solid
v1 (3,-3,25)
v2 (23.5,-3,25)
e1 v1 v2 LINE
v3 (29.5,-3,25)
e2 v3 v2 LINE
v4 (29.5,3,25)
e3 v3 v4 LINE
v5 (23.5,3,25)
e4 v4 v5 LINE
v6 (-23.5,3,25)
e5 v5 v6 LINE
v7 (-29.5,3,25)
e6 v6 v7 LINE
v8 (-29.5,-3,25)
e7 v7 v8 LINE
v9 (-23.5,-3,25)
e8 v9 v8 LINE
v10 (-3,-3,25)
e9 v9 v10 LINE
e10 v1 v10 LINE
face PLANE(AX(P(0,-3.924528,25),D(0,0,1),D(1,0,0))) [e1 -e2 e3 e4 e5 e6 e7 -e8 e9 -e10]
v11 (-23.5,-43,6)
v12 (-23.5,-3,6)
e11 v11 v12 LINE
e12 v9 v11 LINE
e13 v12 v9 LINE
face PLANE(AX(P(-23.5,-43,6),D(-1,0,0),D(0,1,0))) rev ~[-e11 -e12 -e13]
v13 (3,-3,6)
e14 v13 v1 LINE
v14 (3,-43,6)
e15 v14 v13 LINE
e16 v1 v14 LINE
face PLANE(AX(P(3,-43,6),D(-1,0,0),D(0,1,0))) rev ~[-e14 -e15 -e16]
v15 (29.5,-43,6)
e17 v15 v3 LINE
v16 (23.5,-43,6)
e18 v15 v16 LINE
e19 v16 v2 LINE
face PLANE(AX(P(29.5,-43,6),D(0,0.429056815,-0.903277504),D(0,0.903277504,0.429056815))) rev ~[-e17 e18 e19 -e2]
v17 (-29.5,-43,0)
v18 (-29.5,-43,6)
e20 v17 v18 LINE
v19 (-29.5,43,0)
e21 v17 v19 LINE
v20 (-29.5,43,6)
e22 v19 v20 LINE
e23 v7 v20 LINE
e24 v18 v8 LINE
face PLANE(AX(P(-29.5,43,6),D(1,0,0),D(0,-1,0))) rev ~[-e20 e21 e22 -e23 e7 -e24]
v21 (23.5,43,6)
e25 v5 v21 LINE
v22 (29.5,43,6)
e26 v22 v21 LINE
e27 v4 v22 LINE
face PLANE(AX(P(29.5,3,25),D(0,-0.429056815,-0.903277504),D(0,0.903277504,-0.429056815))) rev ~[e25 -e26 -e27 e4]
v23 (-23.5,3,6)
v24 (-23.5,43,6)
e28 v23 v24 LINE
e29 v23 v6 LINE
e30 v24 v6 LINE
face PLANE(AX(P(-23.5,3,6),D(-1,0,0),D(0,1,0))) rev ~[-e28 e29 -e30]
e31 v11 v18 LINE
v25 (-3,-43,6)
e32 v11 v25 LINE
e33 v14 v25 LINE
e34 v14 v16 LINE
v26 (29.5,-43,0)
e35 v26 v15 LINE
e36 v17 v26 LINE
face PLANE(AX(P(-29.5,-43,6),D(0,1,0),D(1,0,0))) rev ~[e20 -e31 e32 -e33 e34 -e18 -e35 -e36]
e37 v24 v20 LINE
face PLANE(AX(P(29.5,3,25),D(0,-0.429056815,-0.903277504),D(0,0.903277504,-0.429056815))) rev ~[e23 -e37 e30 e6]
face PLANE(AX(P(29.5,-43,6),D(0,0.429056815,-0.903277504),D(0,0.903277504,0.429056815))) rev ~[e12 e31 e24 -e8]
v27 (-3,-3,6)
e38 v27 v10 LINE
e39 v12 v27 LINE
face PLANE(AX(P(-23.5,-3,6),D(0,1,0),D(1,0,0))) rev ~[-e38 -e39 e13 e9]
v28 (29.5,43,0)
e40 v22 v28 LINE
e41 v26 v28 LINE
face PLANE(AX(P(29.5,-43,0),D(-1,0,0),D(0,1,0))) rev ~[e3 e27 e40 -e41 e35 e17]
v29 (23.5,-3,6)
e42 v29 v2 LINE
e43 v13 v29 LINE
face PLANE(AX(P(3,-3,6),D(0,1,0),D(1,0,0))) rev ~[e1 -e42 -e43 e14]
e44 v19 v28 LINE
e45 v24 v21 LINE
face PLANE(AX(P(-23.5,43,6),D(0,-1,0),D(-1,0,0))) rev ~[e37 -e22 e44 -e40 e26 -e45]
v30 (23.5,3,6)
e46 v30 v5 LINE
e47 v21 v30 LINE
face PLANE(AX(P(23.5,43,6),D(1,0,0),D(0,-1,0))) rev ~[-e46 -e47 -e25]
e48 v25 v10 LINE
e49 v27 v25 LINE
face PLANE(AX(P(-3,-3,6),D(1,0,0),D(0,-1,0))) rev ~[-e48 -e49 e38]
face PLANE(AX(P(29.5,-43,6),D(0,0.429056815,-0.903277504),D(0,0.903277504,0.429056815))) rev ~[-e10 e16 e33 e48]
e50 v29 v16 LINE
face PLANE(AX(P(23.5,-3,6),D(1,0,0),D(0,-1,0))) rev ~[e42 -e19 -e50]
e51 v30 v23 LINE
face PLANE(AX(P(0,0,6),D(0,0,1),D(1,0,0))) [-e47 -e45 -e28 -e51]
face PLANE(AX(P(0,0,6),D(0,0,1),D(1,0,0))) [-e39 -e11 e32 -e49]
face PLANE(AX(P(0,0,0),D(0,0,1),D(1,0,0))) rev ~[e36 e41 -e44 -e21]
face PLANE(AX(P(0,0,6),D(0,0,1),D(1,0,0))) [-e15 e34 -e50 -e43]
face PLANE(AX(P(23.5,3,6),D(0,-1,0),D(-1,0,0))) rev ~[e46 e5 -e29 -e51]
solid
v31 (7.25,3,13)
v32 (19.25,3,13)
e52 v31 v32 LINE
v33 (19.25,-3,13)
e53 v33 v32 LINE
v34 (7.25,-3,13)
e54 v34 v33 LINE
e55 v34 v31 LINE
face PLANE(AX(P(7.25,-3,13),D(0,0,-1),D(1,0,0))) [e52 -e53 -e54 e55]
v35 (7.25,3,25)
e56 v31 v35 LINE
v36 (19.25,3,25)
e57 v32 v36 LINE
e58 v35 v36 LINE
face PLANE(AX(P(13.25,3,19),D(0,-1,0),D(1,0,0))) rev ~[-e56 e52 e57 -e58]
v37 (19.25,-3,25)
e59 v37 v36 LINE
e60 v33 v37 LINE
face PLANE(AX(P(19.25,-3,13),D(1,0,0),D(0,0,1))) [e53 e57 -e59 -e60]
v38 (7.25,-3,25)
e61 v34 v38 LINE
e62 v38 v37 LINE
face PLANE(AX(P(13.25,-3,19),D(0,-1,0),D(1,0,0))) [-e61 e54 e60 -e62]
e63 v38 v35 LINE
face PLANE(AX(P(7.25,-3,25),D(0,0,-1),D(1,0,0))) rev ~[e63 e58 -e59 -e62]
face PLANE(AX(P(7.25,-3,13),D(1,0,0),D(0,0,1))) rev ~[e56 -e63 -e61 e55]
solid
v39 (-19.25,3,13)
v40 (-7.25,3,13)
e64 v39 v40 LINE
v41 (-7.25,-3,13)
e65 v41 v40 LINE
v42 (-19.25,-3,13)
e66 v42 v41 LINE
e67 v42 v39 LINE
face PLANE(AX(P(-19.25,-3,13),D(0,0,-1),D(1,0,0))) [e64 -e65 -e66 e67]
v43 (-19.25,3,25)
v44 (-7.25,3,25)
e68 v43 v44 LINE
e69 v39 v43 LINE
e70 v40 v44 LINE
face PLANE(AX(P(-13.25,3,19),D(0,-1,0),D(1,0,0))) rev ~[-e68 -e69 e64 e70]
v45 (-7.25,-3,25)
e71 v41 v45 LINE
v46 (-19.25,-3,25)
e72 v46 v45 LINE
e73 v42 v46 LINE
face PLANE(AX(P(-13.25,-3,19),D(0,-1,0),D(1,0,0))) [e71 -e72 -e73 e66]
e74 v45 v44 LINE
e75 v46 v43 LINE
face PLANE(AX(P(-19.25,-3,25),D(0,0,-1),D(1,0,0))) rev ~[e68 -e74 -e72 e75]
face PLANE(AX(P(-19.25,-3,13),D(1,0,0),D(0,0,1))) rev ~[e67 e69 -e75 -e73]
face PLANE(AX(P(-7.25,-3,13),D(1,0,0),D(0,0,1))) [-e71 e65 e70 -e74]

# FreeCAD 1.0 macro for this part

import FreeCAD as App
import Part
import Sketcher


def add_polygon(sketch, points):
    """Adds a closed chain of lines whose ends are joined by coincident constraints."""
    first, n = sketch.GeometryCount, len(points)
    for a, b in zip(points, points[1:] + points[:1]):
        sketch.addGeometry(Part.LineSegment(App.Vector(*a, 0), App.Vector(*b, 0)), False)
    for i in range(n):
        sketch.addConstraint(Sketcher.Constraint("Coincident", first + i, 2, first + (i + 1) % n, 1))

doc = App.newDocument("Part")
params = doc.addObject("Spreadsheet::Sheet", "Params")
for row, (alias, value) in enumerate([
    ("sketch1_width", "59 mm"),
    ("sketch1_height", "86 mm"),
    ("pad1_length", "6 mm"),
    ("sketch2_width", "6 mm"),
    ("sketch2_width2", "47 mm"),
    ("sketch2_height", "86 mm"),
    ("sketch2_height2", "40 mm"),
    ("pad2_length", "19 mm"),
    ("sketch3_width", "40 mm"),
    ("sketch3_height", "19 mm"),
    ("sketch4_width", "12 mm"),
    ("pad3_length", "6 mm"),
], start=1):
    params.set(f"A{row}", alias)
    params.set(f"B{row}", "=" + value)
    params.setAlias(f"B{row}", alias)

body = doc.addObject("PartDesign::Body", "Body")

# Sketch on XY plane
sketch1 = body.newObject("Sketcher::SketchObject", "Sketch")
sketch1.AttachmentSupport = (doc.getObject("XY_Plane"), [""])
sketch1.MapMode = "FlatFace"
add_polygon(sketch1, [(-30, 43), (-30, -43), (30, -43), (30, 43)])  # lines 0-3
sketch1.addConstraint([
    Sketcher.Constraint("Vertical", 0),
    Sketcher.Constraint("Horizontal", 1),
    Sketcher.Constraint("Vertical", 2),
    Sketcher.Constraint("Horizontal", 3),
    Sketcher.Constraint("Symmetric", 0, 2, 2, 2, -1, 1),
    Sketcher.Constraint("DistanceX", 1, 1, 1, 2, 59.0),
    Sketcher.Constraint("DistanceY", 0, 2, 0, 1, 86.0),
])
sketch1.setExpression("Constraints[9]", "Params.sketch1_width")
sketch1.setExpression("Constraints[10]", "Params.sketch1_height")
pad1 = body.newObject("PartDesign::Pad", "Pad")
pad1.Profile = sketch1
pad1.setExpression("Length", "Params.pad1_length")

# Sketch on XY plane
sketch2 = body.newObject("Sketcher::SketchObject", "Sketch001")
sketch2.AttachmentSupport = (doc.getObject("XY_Plane"), [""])
sketch2.MapMode = "FlatFace"
sketch2.AttachmentOffset = App.Placement(App.Vector(0, 0, 6), App.Rotation())
add_polygon(sketch2, [(-24, 43), (-30, 43), (-30, -43), (-24, -43), (-24, -3), (-3, -3), (-3, -43), (3, -43), (3, -3), (24, -3), (24, -43), (30, -43), (30, 43), (24, 43), (24, 3), (-24, 3)])  # lines 0-15
sketch2.addConstraint([
    Sketcher.Constraint("Horizontal", 0),
    Sketcher.Constraint("Vertical", 1),
    Sketcher.Constraint("Horizontal", 2),
    Sketcher.Constraint("Vertical", 3),
    Sketcher.Constraint("Horizontal", 4),
    Sketcher.Constraint("Vertical", 5),
    Sketcher.Constraint("Horizontal", 6),
    Sketcher.Constraint("Vertical", 7),
    Sketcher.Constraint("Horizontal", 8),
    Sketcher.Constraint("Vertical", 9),
    Sketcher.Constraint("Horizontal", 10),
    Sketcher.Constraint("Vertical", 11),
    Sketcher.Constraint("Horizontal", 12),
    Sketcher.Constraint("Vertical", 13),
    Sketcher.Constraint("Horizontal", 14),
    Sketcher.Constraint("Vertical", 15),
    Sketcher.Constraint("Symmetric", 0, 2, 10, 2, -1, 1),
    Sketcher.Constraint("Symmetric", 2, 2, 12, 2, -1, 1),
    Sketcher.Constraint("Symmetric", 8, 2, 14, 2, -1, 1),
    Sketcher.Constraint("Symmetric", 4, 2, 7, 2, -2),
    Sketcher.Constraint("Symmetric", 2, 2, 9, 2, -2),
    Sketcher.Constraint("Horizontal", 2, 2, 5, 2),
    Sketcher.Constraint("Equal", 2, 6),
    Sketcher.Constraint("DistanceX", 0, 2, 0, 1, 6.0),
    Sketcher.Constraint("DistanceX", 14, 2, 14, 1, 47.0),
    Sketcher.Constraint("DistanceY", 1, 2, 1, 1, 86.0),
    Sketcher.Constraint("DistanceY", 3, 1, 3, 2, 40.0),
])
sketch2.setExpression("Constraints[39]", "Params.sketch2_width")
sketch2.setExpression("Constraints[40]", "Params.sketch2_width2")
sketch2.setExpression("Constraints[41]", "Params.sketch2_height")
sketch2.setExpression("Constraints[42]", "Params.sketch2_height2")
pad2 = body.newObject("PartDesign::Pad", "Pad001")
pad2.Profile = sketch2
pad2.setExpression("Length", "Params.pad2_length")

# Sketch on YZ plane
sketch3 = body.newObject("Sketcher::SketchObject", "Sketch002")
sketch3.AttachmentSupport = (doc.getObject("YZ_Plane"), [""])
sketch3.MapMode = "FlatFace"
sketch3.AttachmentOffset = App.Placement(App.Vector(0, 0, 29.5), App.Rotation())
add_polygon(sketch3, [(-43, 25), (-43, 6), (-3, 25)])  # lines 0-2
add_polygon(sketch3, [(43, 25), (3, 25), (43, 6)])  # lines 3-5
sketch3.addConstraint([
    Sketcher.Constraint("Vertical", 0),
    Sketcher.Constraint("Horizontal", 2),
    Sketcher.Constraint("Horizontal", 3),
    Sketcher.Constraint("Vertical", 5),
    Sketcher.Constraint("Symmetric", 1, 2, 3, 2, -2),
    Sketcher.Constraint("Symmetric", 0, 2, 4, 2, -2),
    Sketcher.Constraint("DistanceX", 2, 2, 2, 1, 40.0),
    Sketcher.Constraint("DistanceY", 0, 2, 0, 1, 19.0),
    Sketcher.Constraint("DistanceX", 0, 2, -1, 1, 43.0),
    Sketcher.Constraint("DistanceY", -1, 1, 0, 2, 6.0),
])
sketch3.setExpression("Constraints[12]", "Params.sketch3_width")
sketch3.setExpression("Constraints[13]", "Params.sketch3_height")
pocket1 = body.newObject("PartDesign::Pocket", "Pocket")
pocket1.Profile = sketch3
pocket1.Type = "ThroughAll"
body2 = doc.addObject("PartDesign::Body", "Body001")
body2.AllowCompound = True

# Sketch on XZ plane
sketch4 = body2.newObject("Sketcher::SketchObject", "Sketch003")
sketch4.AttachmentSupport = (doc.getObject("XZ_Plane001"), [""])
sketch4.MapMode = "FlatFace"
sketch4.AttachmentOffset = App.Placement(App.Vector(0, 0, 3), App.Rotation())
add_polygon(sketch4, [(-19, 25), (-19, 13), (-7, 13), (-7, 25)])  # lines 0-3
add_polygon(sketch4, [(7, 25), (7, 13), (19, 13), (19, 25)])  # lines 4-7
sketch4.addConstraint([
    Sketcher.Constraint("Vertical", 0),
    Sketcher.Constraint("Horizontal", 1),
    Sketcher.Constraint("Vertical", 2),
    Sketcher.Constraint("Horizontal", 3),
    Sketcher.Constraint("Vertical", 4),
    Sketcher.Constraint("Horizontal", 5),
    Sketcher.Constraint("Vertical", 6),
    Sketcher.Constraint("Horizontal", 7),
    Sketcher.Constraint("Symmetric", 1, 2, 4, 2, -2),
    Sketcher.Constraint("Symmetric", 3, 2, 6, 2, -2),
    Sketcher.Constraint("Equal", 7, 0),
    Sketcher.Constraint("DistanceX", 1, 1, 1, 2, 12.0),
    Sketcher.Constraint("DistanceY", -1, 1, 0, 2, 13.0),
    Sketcher.Constraint("DistanceX", 1, 2, 4, 2, 14.5),
])
sketch4.setExpression("Constraints[19]", "Params.sketch4_width")
pad3 = body2.newObject("PartDesign::Pad", "Pad002")
pad3.Profile = sketch4
pad3.setExpression("Length", "Params.pad3_length")
pad3.Reversed = True

doc.recompute()
